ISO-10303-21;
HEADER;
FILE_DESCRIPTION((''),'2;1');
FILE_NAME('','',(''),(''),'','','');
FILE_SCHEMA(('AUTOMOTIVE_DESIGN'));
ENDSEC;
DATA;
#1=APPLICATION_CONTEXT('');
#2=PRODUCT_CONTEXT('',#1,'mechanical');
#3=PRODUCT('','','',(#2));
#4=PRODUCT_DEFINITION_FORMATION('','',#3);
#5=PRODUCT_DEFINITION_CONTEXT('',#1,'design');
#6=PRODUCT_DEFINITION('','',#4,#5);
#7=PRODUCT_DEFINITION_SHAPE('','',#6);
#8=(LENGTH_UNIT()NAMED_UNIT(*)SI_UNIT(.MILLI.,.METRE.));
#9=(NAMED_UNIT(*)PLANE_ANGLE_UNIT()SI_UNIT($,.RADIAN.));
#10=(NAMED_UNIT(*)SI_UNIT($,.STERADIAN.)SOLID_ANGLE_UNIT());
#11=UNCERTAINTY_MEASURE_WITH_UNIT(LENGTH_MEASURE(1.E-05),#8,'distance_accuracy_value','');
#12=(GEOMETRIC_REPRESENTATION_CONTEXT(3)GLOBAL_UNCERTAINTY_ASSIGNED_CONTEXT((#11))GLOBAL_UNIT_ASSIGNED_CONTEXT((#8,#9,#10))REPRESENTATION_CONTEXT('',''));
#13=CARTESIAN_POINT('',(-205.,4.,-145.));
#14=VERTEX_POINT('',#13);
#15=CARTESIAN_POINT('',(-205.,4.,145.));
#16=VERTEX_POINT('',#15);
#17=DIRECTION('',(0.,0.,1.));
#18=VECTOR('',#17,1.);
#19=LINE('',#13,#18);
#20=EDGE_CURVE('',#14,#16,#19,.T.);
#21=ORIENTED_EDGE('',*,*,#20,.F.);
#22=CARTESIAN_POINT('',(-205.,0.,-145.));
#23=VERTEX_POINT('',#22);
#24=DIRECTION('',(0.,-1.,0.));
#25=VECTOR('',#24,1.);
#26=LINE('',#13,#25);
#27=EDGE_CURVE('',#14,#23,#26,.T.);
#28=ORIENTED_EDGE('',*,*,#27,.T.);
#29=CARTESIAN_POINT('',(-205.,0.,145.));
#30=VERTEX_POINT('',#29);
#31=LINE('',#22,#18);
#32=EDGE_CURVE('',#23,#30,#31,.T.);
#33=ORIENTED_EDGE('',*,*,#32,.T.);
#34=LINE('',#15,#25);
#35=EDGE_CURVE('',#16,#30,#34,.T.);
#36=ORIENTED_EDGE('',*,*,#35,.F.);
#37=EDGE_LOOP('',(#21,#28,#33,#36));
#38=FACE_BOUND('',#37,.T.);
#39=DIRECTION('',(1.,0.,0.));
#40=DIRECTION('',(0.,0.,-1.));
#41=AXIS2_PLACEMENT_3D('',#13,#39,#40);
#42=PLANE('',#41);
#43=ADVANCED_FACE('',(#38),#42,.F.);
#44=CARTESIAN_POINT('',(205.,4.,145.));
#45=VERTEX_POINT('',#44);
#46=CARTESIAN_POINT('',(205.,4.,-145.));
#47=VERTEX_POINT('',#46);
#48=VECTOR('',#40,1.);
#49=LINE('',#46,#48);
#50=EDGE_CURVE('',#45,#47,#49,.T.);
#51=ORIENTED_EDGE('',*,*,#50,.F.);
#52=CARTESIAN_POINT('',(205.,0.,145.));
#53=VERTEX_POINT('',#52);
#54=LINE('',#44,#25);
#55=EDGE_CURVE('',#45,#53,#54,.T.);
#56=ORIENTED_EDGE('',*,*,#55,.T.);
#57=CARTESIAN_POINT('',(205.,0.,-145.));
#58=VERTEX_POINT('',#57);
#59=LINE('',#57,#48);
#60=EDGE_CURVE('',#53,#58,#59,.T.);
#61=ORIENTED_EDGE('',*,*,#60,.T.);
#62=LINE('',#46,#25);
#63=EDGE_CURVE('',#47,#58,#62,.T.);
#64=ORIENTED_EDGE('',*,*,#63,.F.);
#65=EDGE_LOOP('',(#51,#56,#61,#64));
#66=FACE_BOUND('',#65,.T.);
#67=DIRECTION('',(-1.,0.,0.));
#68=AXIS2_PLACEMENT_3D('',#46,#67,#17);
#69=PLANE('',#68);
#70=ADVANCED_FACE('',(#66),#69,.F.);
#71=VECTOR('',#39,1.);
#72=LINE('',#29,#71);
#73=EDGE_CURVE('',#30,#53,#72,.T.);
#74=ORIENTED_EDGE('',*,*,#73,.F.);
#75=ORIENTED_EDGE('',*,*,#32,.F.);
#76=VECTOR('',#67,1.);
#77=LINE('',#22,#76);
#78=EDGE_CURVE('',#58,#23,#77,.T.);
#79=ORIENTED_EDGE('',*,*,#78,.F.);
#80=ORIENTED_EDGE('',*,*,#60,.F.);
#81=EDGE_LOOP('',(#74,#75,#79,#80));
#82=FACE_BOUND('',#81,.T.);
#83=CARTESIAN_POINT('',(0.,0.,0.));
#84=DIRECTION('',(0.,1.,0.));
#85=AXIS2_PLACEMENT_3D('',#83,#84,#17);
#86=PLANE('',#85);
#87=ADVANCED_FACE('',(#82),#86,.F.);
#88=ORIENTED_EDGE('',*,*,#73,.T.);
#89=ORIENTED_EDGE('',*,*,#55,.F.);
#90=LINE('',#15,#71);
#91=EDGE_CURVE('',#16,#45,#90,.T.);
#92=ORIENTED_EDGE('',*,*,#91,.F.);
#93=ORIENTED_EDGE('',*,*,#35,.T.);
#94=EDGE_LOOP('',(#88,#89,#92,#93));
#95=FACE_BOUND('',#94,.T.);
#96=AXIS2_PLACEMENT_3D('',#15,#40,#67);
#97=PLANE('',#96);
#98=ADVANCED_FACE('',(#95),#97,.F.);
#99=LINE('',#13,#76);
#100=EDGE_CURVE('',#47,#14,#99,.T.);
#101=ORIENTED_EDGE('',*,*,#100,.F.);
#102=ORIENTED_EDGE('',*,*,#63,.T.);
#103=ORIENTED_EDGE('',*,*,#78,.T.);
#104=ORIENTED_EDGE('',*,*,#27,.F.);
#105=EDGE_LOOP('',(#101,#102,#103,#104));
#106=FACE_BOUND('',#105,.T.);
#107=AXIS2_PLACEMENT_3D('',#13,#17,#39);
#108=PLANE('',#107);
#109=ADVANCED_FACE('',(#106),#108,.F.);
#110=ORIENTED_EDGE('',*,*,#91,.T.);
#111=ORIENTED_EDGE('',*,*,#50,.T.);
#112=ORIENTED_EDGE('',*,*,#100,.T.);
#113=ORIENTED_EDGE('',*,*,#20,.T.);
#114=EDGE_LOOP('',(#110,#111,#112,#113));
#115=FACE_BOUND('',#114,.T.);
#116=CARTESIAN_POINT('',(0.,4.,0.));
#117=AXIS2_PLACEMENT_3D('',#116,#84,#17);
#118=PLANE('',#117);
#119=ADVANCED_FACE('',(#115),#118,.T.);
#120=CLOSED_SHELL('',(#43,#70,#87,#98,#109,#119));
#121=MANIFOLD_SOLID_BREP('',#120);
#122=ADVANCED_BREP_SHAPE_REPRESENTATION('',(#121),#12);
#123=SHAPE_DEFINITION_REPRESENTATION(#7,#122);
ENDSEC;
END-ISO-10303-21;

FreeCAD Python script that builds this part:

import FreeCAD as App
import Part
import Sketcher

V = App.Vector
Q = App.Units.Quantity


def add_polygon(sketch, points):
    """Adds a closed chain of lines whose ends are joined by coincident constraints."""
    first, n = sketch.GeometryCount, len(points)
    for a, b in zip(points, points[1:] + points[:1]):
        sketch.addGeometry(Part.LineSegment(App.Vector(*a, 0), App.Vector(*b, 0)), False)
    for i in range(n):
        sketch.addConstraint(Sketcher.Constraint("Coincident", first + i, 2, first + (i + 1) % n, 1))

doc = App.newDocument("Part")
params = doc.addObject("Spreadsheet::Sheet", "Params")
for row, (alias, value) in enumerate([
    ("sketch1_width", "410 mm"),
    ("sketch1_height", "290 mm"),
    ("pad1_length", "4 mm"),
], start=1):
    params.set(f"A{row}", alias)
    params.set(f"B{row}", "=" + value)
    params.setAlias(f"B{row}", alias)

body = doc.addObject("PartDesign::Body", "Body")

# Sketch on XZ plane
sketch1 = body.newObject("Sketcher::SketchObject", "Sketch")
sketch1.AttachmentSupport = (doc.getObject("XZ_Plane"), [""])
sketch1.MapMode = "FlatFace"
add_polygon(sketch1, [(-205, -145), (-205, 145), (205, 145), (205, -145)])  # lines 0-3
sketch1.addConstraint([
    Sketcher.Constraint("Vertical", 0),
    Sketcher.Constraint("Horizontal", 1),
    Sketcher.Constraint("Vertical", 2),
    Sketcher.Constraint("Horizontal", 3),
    Sketcher.Constraint("Symmetric", 0, 2, 2, 2, -1, 1),
    Sketcher.Constraint("DistanceX", 1, 1, 1, 2, Q("410 mm")),
    Sketcher.Constraint("DistanceY", 0, 1, 0, 2, Q("290 mm")),
])
sketch1.setExpression("Constraints[9]", "Params.sketch1_width")
sketch1.setExpression("Constraints[10]", "Params.sketch1_height")
pad1 = body.newObject("PartDesign::Pad", "Pad")
pad1.Profile = sketch1
pad1.setExpression("Length", "Params.pad1_length")
pad1.Reversed = True

doc.recompute()
